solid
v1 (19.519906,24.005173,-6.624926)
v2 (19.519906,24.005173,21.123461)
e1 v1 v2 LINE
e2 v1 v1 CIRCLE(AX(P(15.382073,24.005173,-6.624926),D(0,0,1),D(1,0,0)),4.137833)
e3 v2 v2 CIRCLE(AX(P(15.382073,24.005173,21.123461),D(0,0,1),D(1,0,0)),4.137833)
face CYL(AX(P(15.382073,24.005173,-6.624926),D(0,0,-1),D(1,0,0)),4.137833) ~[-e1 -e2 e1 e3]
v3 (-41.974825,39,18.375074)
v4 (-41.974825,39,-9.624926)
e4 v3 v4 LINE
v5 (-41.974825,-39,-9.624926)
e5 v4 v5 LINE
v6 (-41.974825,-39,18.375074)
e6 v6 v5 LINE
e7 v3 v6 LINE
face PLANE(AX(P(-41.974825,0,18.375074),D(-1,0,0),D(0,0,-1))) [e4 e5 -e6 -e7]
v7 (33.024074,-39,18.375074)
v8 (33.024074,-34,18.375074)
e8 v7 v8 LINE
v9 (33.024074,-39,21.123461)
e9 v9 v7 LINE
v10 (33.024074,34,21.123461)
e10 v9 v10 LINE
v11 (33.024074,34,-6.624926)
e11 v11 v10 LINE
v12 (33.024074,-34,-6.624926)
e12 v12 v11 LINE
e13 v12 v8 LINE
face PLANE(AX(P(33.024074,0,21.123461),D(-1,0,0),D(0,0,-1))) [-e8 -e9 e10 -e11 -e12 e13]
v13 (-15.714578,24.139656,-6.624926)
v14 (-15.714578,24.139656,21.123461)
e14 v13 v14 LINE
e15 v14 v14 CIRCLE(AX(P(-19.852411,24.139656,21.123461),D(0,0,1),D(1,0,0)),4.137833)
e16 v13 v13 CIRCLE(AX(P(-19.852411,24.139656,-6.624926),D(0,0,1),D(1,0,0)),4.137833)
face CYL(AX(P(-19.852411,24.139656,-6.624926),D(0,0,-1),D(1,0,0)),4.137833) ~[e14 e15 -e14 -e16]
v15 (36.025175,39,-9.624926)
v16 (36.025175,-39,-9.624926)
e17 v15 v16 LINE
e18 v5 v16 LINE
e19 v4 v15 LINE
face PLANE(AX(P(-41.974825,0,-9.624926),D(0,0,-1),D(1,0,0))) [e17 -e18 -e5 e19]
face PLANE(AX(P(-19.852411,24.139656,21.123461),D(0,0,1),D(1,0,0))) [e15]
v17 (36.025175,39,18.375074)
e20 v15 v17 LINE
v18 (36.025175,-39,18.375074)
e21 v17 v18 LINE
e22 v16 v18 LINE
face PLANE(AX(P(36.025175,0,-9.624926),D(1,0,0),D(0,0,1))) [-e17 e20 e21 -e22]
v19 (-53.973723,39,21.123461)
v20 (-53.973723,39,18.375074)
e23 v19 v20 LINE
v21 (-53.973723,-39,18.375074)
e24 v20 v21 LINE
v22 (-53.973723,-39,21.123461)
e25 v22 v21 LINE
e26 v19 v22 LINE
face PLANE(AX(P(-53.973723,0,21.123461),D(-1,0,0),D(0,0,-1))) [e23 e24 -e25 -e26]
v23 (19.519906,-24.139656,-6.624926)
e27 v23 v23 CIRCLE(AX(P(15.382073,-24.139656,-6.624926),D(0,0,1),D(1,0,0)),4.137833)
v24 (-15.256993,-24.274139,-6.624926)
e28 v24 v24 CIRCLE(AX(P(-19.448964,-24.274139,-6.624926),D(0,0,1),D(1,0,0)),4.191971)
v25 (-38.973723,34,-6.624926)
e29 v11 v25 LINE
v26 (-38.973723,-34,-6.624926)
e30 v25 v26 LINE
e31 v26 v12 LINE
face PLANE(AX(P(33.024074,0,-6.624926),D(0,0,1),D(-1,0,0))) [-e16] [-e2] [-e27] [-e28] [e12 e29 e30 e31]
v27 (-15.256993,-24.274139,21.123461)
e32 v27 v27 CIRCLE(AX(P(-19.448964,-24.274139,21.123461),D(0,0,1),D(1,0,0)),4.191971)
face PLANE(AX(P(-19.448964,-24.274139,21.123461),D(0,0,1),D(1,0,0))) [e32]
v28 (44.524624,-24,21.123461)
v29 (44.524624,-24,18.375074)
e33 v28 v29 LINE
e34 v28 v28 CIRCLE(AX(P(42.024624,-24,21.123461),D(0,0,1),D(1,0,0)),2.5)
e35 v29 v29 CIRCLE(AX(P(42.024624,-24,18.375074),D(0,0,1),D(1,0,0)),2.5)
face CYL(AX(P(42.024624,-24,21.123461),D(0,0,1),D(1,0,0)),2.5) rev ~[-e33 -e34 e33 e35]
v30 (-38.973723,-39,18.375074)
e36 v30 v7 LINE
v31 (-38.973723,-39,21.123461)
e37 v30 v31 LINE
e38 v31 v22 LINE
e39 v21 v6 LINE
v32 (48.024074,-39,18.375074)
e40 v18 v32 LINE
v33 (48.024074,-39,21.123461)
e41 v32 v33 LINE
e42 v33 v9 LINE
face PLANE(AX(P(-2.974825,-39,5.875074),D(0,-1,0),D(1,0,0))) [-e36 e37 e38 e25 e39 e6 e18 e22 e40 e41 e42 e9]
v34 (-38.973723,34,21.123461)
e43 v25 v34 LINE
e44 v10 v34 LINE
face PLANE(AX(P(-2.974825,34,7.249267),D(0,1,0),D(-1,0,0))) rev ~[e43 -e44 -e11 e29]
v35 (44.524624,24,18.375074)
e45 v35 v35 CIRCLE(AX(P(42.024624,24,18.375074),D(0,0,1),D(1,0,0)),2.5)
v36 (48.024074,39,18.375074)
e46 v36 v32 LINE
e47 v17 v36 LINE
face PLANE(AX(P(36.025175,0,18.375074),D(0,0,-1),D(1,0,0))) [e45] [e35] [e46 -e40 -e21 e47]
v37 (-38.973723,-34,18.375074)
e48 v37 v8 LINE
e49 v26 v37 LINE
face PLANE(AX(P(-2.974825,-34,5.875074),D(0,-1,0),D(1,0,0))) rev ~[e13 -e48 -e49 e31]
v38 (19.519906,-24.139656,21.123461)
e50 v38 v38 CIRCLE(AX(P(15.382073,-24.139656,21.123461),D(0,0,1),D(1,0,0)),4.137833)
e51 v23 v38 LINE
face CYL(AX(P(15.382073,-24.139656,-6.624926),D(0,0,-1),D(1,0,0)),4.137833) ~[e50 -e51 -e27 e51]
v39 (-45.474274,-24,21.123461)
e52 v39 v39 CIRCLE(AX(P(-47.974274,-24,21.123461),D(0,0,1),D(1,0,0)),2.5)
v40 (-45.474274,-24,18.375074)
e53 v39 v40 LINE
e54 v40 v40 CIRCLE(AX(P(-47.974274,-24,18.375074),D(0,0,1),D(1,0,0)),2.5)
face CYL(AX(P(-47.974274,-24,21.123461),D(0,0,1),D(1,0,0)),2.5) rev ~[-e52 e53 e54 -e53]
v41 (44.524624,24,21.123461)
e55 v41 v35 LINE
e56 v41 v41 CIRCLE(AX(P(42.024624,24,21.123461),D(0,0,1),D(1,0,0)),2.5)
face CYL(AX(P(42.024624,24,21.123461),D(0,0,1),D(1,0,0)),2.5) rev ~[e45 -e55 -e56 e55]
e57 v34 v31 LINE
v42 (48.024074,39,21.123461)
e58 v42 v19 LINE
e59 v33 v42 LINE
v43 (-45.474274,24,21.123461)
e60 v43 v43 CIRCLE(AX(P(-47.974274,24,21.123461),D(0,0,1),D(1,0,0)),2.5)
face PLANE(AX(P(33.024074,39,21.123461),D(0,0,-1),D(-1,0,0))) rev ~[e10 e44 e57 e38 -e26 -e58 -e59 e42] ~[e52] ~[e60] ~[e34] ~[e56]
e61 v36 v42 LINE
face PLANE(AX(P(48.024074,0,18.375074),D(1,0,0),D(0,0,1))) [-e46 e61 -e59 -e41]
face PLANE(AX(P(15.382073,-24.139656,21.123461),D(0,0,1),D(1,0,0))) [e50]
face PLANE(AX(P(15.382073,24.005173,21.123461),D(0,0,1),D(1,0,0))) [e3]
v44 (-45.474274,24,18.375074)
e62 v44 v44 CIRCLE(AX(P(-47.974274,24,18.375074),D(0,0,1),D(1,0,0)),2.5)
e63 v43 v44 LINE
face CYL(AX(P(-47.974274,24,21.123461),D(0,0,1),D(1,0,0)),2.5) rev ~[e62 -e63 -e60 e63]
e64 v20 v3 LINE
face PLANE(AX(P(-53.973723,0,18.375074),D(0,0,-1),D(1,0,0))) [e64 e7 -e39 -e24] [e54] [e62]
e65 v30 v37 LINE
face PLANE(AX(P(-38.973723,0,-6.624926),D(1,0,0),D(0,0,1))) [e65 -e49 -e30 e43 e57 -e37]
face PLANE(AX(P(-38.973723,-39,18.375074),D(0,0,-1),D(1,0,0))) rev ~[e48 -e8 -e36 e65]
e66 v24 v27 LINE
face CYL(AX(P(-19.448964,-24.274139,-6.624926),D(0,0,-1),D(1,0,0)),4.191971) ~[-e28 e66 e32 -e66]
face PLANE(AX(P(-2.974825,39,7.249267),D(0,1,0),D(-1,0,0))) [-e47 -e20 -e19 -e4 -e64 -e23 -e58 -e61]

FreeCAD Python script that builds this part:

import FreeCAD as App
import Part
import Sketcher

V = App.Vector
Q = App.Units.Quantity


def add_polygon(sketch, points):
    """Adds a closed chain of lines whose ends are joined by coincident constraints."""
    first, n = sketch.GeometryCount, len(points)
    for a, b in zip(points, points[1:] + points[:1]):
        sketch.addGeometry(Part.LineSegment(App.Vector(*a, 0), App.Vector(*b, 0)), False)
    for i in range(n):
        sketch.addConstraint(Sketcher.Constraint("Coincident", first + i, 2, first + (i + 1) % n, 1))

doc = App.newDocument("Part")
body = doc.addObject("PartDesign::Body", "Body")

# Sketch on XZ plane
sketch1 = body.newObject("Sketcher::SketchObject", "Sketch")
sketch1.AttachmentSupport = (doc.getObject("XZ_Plane"), [""])
sketch1.MapMode = "FlatFace"
add_polygon(sketch1, [(33, -6.6), (-39, -6.6), (-39, 21.1), (-54, 21.1), (-54, 18.4), (-42, 18.4), (-42, -9.6), (36, -9.6), (36, 18.4), (48, 18.4), (48, 21.1), (33, 21.1)])  # lines 0-11
sketch1.addConstraint(Sketcher.Constraint("Horizontal", 0))
sketch1.addConstraint(Sketcher.Constraint("Vertical", 1))
sketch1.addConstraint(Sketcher.Constraint("Horizontal", 2))
sketch1.addConstraint(Sketcher.Constraint("Vertical", 3))
sketch1.addConstraint(Sketcher.Constraint("Horizontal", 4))
sketch1.addConstraint(Sketcher.Constraint("Vertical", 5))
sketch1.addConstraint(Sketcher.Constraint("Horizontal", 6))
sketch1.addConstraint(Sketcher.Constraint("Vertical", 7))
sketch1.addConstraint(Sketcher.Constraint("Horizontal", 8))
sketch1.addConstraint(Sketcher.Constraint("Vertical", 9))
sketch1.addConstraint(Sketcher.Constraint("Horizontal", 10))
sketch1.addConstraint(Sketcher.Constraint("Vertical", 11))
sketch1.addConstraint(Sketcher.Constraint("Horizontal", 4, 2, 7, 2))
sketch1.addConstraint(Sketcher.Constraint("Horizontal", 2, 2, 9, 2))
sketch1.addConstraint(Sketcher.Constraint("Equal", 4, 8))
sketch1.addConstraint(Sketcher.Constraint("Equal", 2, 10))
sketch1.addConstraint(Sketcher.Constraint("DistanceX", 2, 2, 2, 1, Q("15 mm")))
sketch1.addConstraint(Sketcher.Constraint("DistanceX", 6, 1, 6, 2, Q("78 mm")))
sketch1.addConstraint(Sketcher.Constraint("DistanceY", 5, 2, 5, 1, Q("28 mm")))
sketch1.addConstraint(Sketcher.Constraint("DistanceY", 0, 2, 3, 2, Q("25 mm")))
sketch1.addConstraint(Sketcher.Constraint("DistanceX", 4, 1, 4, 2, Q("11.998899 mm")))
sketch1.addConstraint(Sketcher.Constraint("DistanceY", 1, 1, 1, 2, Q("27.748387 mm")))
sketch1.addConstraint(Sketcher.Constraint("DistanceY", -1, 1, 1, 2, Q("21.123461 mm")))
sketch1.addConstraint(Sketcher.Constraint("DistanceX", 0, 2, -1, 1, Q("38.973723 mm")))
pad1 = body.newObject("PartDesign::Pad", "Pad")
pad1.Profile = sketch1
pad1.Length = 78
pad1.Midplane = True

# Sketch on XY plane
sketch2 = body.newObject("Sketcher::SketchObject", "Sketch001")
sketch2.AttachmentSupport = (doc.getObject("XY_Plane"), [""])
sketch2.MapMode = "FlatFace"
sketch2.AttachmentOffset = App.Placement(V(0, 0, 21.123461), App.Rotation())
sketch2.addGeometry(Part.Circle(V(42, -24, 0), V(0, 0, 1), 2.5), False)
sketch2.addGeometry(Part.Circle(V(42, 24, 0), V(0, 0, 1), 2.5), False)
sketch2.addGeometry(Part.Circle(V(-48, 24, 0), V(0, 0, 1), 2.5), False)
sketch2.addGeometry(Part.Circle(V(-48, -24, 0), V(0, 0, 1), 2.5), False)
sketch2.addConstraint(Sketcher.Constraint("Equal", 0, 1))
sketch2.addConstraint(Sketcher.Constraint("Equal", 1, 2))
sketch2.addConstraint(Sketcher.Constraint("Equal", 2, 3))
sketch2.addConstraint(Sketcher.Constraint("Symmetric", 0, 3, 1, 3, -1))
sketch2.addConstraint(Sketcher.Constraint("Symmetric", 2, 3, 3, 3, -1))
sketch2.addConstraint(Sketcher.Constraint("Horizontal", 1, 3, 2, 3))
sketch2.addConstraint(Sketcher.Constraint("Diameter", 0, Q("5 mm")))
sketch2.addConstraint(Sketcher.Constraint("DistanceY", 0, 3, -1, 1, Q("24 mm")))
sketch2.addConstraint(Sketcher.Constraint("DistanceX", 2, 3, 1, 3, Q("89.998899 mm")))
sketch2.addConstraint(Sketcher.Constraint("DistanceX", -1, 1, 0, 3, Q("42.024624 mm")))
pocket1 = body.newObject("PartDesign::Pocket", "Pocket")
pocket1.Profile = sketch2
pocket1.Type = "ThroughAll"

# Sketch on XY plane
sketch3 = body.newObject("Sketcher::SketchObject", "Sketch002")
sketch3.AttachmentSupport = (doc.getObject("XY_Plane"), [""])
sketch3.MapMode = "FlatFace"
sketch3.AttachmentOffset = App.Placement(V(0, 0, -6.624926), App.Rotation())
sketch3.addGeometry(Part.Circle(V(15.4, 24, 0), V(0, 0, 1), 4.1), False)
sketch3.addGeometry(Part.Circle(V(15.4, -24.1, 0), V(0, 0, 1), 4.1), False)
sketch3.addGeometry(Part.Circle(V(-19.9, 24.1, 0), V(0, 0, 1), 4.1), False)
sketch3.addGeometry(Part.Circle(V(-19.4, -24.3, 0), V(0, 0, 1), 4.2), False)
sketch3.addConstraint(Sketcher.Constraint("Equal", 0, 1))
sketch3.addConstraint(Sketcher.Constraint("Equal", 1, 2))
sketch3.addConstraint(Sketcher.Constraint("Vertical", 0, 3, 1, 3))
sketch3.addConstraint(Sketcher.Constraint("Diameter", 3, Q("8.383941 mm")))
sketch3.addConstraint(Sketcher.Constraint("Diameter", 0, Q("8.275666 mm")))
sketch3.addConstraint(Sketcher.Constraint("DistanceX", 2, 3, -1, 1, Q("19.852411 mm")))
sketch3.addConstraint(Sketcher.Constraint("DistanceY", 3, 3, -1, 1, Q("24.274139 mm")))
sketch3.addConstraint(Sketcher.Constraint("DistanceY", 1, 3, 0, 3, Q("48.144829 mm")))
sketch3.addConstraint(Sketcher.Constraint("DistanceY", 1, 3, 2, 3, Q("48.279312 mm")))
sketch3.addConstraint(Sketcher.Constraint("DistanceY", 3, 3, 0, 3, Q("48.279312 mm")))
sketch3.addConstraint(Sketcher.Constraint("DistanceX", -1, 1, 0, 3, Q("15.382073 mm")))
sketch3.addConstraint(Sketcher.Constraint("DistanceX", 3, 3, -1, 1, Q("19.448964 mm")))
pad2 = body.newObject("PartDesign::Pad", "Pad001")
pad2.Profile = sketch3
pad2.Length = 27.748387

# Sketch on XZ plane
sketch4 = body.newObject("Sketcher::SketchObject", "Sketch003")
sketch4.AttachmentSupport = (doc.getObject("XZ_Plane"), [""])
sketch4.MapMode = "FlatFace"
sketch4.AttachmentOffset = App.Placement(V(0, 0, 39), App.Rotation())
add_polygon(sketch4, [(-39, 18), (-39, -7), (33, -7), (33, 18)])  # lines 0-3
sketch4.addConstraint(Sketcher.Constraint("Vertical", 0))
sketch4.addConstraint(Sketcher.Constraint("Horizontal", 1))
sketch4.addConstraint(Sketcher.Constraint("Vertical", 2))
sketch4.addConstraint(Sketcher.Constraint("Horizontal", 3))
sketch4.addConstraint(Sketcher.Constraint("DistanceY", 0, 2, 0, 1, Q("25 mm")))
sketch4.addConstraint(Sketcher.Constraint("DistanceX", 1, 1, 1, 2, Q("71.997797 mm")))
sketch4.addConstraint(Sketcher.Constraint("DistanceX", 0, 2, -1, 1, Q("38.973723 mm")))
sketch4.addConstraint(Sketcher.Constraint("DistanceY", 0, 2, -1, 1, Q("6.624926 mm")))
pad3 = body.newObject("PartDesign::Pad", "Pad002")
pad3.Profile = sketch4
pad3.Length = 5
pad3.Reversed = True

# Sketch on XZ plane
sketch5 = body.newObject("Sketcher::SketchObject", "Sketch004")
sketch5.AttachmentSupport = (doc.getObject("XZ_Plane"), [""])
sketch5.MapMode = "FlatFace"
sketch5.AttachmentOffset = App.Placement(V(0, 0, -39), App.Rotation())
add_polygon(sketch5, [(33, 21), (33, -7), (-39, -7), (-39, 21)])  # lines 0-3
sketch5.addConstraint(Sketcher.Constraint("Vertical", 0))
sketch5.addConstraint(Sketcher.Constraint("Horizontal", 1))
sketch5.addConstraint(Sketcher.Constraint("Vertical", 2))
sketch5.addConstraint(Sketcher.Constraint("Horizontal", 3))
sketch5.addConstraint(Sketcher.Constraint("DistanceX", 1, 2, 1, 1, Q("71.997797 mm")))
sketch5.addConstraint(Sketcher.Constraint("DistanceY", 0, 2, 0, 1, Q("27.748387 mm")))
sketch5.addConstraint(Sketcher.Constraint("DistanceY", -1, 1, 2, 2, Q("21.123461 mm")))
sketch5.addConstraint(Sketcher.Constraint("DistanceX", -1, 1, 0, 2, Q("33.024074 mm")))
pad4 = body.newObject("PartDesign::Pad", "Pad003")
pad4.Profile = sketch5
pad4.Length = 5

doc.recompute()
